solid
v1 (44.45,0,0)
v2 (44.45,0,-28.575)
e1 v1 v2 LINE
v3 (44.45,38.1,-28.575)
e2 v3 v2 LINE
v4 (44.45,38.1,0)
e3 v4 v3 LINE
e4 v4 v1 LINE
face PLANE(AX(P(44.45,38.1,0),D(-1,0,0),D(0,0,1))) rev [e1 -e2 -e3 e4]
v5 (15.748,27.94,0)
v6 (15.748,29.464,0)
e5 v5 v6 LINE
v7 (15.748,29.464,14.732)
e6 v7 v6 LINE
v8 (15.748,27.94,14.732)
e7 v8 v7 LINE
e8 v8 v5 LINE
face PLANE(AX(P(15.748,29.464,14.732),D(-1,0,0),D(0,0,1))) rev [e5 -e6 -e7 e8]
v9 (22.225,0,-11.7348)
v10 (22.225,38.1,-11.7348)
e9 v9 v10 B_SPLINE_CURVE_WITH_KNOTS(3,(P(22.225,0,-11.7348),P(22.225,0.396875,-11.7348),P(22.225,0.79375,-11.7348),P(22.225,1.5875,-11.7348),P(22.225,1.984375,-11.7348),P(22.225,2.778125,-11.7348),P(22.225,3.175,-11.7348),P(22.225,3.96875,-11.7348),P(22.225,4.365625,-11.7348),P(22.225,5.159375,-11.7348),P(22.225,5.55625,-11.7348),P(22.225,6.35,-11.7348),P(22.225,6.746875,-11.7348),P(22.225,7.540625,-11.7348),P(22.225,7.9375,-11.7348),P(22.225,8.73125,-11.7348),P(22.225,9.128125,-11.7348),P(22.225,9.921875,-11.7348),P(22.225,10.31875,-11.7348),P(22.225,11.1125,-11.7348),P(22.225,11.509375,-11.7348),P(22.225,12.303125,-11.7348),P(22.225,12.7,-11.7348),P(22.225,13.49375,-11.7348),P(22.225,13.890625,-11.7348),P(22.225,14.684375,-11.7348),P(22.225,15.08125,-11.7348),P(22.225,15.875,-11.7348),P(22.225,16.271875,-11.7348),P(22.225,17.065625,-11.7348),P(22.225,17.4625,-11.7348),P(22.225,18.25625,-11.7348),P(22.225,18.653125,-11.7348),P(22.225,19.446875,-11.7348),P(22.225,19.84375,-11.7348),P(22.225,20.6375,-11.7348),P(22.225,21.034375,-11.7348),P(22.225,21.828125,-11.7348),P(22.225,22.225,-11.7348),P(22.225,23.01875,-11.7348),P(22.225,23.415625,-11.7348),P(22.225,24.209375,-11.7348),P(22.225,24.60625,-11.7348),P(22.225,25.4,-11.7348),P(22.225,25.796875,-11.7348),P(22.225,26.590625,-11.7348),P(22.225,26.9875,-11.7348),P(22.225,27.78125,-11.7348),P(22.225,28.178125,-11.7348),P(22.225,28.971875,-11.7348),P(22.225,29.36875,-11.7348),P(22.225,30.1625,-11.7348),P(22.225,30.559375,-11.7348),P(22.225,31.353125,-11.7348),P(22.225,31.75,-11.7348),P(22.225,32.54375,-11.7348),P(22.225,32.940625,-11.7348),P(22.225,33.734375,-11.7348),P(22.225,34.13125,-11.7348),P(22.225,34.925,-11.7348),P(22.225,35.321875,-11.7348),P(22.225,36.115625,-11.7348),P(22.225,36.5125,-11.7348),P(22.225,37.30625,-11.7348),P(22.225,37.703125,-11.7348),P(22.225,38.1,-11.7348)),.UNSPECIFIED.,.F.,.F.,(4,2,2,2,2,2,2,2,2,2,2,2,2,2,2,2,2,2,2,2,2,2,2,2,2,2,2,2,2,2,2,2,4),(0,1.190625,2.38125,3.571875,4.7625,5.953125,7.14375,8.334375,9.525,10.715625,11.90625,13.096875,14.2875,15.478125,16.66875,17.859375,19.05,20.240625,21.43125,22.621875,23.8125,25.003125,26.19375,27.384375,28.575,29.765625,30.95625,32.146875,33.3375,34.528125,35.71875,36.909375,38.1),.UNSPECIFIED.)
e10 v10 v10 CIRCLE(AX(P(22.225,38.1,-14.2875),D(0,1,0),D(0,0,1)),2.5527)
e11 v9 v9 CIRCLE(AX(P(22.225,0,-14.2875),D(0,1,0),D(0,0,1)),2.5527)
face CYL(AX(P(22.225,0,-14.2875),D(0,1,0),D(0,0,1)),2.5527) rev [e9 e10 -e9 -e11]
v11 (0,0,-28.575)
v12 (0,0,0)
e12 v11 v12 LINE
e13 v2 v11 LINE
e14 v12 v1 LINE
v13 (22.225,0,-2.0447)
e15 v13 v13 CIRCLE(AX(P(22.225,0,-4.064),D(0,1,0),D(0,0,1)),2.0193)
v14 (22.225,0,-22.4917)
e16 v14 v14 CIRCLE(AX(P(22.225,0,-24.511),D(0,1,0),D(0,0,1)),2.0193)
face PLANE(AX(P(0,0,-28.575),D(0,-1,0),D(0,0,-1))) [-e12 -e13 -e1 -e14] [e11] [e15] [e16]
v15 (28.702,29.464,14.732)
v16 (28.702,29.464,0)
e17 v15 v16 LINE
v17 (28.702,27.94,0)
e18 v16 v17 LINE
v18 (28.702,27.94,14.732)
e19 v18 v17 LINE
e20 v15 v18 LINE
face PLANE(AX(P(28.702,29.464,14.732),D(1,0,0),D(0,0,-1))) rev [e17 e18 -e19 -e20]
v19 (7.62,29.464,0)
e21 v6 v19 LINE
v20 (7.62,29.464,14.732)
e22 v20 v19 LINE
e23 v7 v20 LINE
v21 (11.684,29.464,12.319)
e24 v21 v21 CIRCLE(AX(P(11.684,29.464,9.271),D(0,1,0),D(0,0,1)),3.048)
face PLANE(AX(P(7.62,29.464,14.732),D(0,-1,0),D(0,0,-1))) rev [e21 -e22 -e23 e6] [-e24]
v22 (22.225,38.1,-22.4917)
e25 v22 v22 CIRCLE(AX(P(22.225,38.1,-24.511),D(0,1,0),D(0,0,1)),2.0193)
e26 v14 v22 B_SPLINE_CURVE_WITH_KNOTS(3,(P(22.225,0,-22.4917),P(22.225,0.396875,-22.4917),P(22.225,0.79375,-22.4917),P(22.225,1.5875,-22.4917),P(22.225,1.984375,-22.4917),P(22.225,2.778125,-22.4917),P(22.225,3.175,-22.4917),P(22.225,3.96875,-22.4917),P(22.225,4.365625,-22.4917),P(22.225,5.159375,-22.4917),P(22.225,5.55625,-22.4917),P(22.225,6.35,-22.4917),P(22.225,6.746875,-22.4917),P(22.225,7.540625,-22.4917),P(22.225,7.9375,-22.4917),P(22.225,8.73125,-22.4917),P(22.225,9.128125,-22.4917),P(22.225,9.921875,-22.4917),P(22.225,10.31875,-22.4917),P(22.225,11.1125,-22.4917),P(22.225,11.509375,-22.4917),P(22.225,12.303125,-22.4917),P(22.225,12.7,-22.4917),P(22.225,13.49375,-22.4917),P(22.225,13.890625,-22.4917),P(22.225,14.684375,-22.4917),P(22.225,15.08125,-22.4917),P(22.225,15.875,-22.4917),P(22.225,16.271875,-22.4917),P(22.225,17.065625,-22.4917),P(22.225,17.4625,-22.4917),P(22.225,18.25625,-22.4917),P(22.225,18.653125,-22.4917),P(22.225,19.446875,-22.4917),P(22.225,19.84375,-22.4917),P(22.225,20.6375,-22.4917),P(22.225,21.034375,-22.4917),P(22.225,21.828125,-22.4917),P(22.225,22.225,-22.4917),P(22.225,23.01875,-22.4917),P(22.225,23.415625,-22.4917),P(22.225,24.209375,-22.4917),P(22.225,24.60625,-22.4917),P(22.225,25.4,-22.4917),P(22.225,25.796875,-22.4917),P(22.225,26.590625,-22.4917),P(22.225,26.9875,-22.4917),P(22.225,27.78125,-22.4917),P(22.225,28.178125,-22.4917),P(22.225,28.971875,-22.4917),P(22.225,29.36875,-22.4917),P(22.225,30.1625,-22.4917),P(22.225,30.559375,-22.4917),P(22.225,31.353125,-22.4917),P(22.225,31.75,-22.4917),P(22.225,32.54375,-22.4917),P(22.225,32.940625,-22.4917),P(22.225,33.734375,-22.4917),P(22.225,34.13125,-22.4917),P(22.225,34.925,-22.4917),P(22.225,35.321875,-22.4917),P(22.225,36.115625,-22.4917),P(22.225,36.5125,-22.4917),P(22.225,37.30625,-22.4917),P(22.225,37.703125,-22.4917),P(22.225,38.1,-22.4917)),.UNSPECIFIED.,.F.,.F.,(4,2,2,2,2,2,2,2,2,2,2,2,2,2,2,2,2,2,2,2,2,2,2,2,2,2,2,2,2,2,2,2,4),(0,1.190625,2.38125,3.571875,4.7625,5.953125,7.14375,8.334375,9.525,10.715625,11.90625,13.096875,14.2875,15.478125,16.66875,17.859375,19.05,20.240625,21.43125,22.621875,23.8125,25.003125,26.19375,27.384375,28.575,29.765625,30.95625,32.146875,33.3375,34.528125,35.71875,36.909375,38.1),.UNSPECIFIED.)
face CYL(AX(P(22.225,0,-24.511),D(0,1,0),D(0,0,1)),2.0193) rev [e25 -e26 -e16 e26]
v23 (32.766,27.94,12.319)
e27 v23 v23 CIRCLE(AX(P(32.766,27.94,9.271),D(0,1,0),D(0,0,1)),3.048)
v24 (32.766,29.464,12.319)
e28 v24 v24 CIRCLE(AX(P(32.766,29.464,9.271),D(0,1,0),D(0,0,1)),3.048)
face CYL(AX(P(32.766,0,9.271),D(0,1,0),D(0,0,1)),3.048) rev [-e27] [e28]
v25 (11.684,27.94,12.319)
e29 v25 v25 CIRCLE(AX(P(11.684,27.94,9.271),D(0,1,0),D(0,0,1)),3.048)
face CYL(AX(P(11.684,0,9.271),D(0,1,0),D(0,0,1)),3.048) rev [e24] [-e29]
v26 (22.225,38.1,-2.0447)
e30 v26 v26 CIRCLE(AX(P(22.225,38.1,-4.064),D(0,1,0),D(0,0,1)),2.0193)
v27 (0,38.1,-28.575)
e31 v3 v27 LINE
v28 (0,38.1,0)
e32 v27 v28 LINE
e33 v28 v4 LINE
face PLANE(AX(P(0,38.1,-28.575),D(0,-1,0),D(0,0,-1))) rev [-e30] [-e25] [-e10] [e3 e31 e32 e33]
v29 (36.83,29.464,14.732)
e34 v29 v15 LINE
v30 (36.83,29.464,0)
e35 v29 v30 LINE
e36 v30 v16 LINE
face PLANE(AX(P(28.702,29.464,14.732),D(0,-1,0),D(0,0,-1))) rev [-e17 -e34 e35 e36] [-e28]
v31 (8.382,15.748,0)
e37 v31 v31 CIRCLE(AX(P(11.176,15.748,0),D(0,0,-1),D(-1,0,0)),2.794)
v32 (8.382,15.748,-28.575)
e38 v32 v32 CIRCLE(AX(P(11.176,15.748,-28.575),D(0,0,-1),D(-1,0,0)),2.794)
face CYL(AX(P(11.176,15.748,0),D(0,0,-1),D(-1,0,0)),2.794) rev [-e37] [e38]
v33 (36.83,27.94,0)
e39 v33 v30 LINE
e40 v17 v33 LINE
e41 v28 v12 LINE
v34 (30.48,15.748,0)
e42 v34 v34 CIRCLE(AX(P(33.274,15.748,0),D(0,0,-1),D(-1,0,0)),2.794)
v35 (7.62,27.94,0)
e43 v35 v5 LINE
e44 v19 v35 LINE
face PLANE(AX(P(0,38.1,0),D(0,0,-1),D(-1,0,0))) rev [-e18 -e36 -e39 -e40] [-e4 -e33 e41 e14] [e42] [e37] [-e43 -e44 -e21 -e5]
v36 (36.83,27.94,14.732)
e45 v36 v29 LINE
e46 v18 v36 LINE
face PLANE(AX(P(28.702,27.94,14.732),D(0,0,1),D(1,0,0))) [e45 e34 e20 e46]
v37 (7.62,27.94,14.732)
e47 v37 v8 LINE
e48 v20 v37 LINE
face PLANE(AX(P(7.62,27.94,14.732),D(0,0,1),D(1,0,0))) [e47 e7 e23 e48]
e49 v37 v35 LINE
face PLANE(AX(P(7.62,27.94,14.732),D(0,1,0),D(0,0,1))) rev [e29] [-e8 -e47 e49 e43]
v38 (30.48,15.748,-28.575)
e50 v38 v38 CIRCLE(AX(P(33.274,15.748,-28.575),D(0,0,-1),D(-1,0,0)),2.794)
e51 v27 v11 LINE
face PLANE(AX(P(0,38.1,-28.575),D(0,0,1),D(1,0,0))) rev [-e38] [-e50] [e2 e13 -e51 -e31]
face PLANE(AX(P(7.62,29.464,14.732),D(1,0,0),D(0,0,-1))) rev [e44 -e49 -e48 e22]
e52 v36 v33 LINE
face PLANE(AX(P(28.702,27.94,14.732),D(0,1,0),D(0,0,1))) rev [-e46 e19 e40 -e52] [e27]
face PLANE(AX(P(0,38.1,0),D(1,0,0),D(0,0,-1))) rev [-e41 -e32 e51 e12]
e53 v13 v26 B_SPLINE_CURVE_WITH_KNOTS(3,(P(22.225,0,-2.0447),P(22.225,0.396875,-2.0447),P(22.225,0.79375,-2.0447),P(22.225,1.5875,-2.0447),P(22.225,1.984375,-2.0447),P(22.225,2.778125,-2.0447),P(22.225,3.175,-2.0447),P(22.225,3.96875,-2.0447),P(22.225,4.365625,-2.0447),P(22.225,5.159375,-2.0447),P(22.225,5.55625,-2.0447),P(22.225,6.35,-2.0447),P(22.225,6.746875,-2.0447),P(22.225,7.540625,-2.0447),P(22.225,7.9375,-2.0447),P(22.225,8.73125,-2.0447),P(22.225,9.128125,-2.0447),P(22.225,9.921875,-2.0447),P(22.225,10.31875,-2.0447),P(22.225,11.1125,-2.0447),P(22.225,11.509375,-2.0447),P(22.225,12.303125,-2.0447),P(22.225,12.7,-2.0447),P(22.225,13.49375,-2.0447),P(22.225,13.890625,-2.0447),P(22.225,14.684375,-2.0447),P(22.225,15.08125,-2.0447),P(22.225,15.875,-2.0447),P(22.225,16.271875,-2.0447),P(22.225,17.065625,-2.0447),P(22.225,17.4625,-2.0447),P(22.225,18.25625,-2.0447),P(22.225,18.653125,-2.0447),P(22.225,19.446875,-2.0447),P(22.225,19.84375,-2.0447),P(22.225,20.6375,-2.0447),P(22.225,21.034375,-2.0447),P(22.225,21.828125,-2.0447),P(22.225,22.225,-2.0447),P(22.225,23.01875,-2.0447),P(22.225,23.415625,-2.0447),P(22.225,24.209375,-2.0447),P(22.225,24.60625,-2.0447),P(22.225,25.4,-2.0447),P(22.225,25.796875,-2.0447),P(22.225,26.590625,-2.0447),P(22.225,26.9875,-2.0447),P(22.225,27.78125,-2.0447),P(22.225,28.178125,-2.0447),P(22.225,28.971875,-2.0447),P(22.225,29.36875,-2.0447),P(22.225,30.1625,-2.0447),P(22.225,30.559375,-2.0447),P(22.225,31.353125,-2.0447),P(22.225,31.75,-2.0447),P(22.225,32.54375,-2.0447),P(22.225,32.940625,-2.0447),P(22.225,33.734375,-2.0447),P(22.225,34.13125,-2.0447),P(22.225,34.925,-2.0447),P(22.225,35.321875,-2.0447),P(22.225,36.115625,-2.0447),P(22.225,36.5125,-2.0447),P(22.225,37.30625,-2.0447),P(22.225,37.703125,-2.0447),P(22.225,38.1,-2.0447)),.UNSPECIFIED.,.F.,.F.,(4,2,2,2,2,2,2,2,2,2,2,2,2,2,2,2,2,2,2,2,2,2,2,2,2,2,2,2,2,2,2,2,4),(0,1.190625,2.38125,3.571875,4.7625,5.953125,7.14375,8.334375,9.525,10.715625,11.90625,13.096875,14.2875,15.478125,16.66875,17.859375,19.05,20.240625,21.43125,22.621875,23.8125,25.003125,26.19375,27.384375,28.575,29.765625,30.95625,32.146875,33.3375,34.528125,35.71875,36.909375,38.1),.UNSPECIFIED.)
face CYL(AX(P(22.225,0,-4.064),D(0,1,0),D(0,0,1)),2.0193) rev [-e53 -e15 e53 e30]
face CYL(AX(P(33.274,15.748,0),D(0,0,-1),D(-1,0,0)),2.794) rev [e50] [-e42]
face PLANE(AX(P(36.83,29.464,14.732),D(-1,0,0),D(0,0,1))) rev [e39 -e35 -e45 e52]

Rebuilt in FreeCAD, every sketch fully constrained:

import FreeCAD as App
import Part
import Sketcher

V = App.Vector
Q = App.Units.Quantity

doc = App.newDocument("Part")
body = doc.addObject("PartDesign::Body", "Body")

# Sketch on XZ plane
sketch1 = doc.addObject("Sketcher::SketchObject", "Sketch")
body.addObject(sketch1)
sketch1.AttachmentSupport = (doc.XZ_Plane, [""])
sketch1.MapMode = "FlatFace"
sketch1.addGeometry(Part.LineSegment(V(0, -29, 0), V(0, 0, 0)), False)
sketch1.addGeometry(Part.LineSegment(V(0, 0, 0), V(44, 0, 0)), False)
sketch1.addGeometry(Part.LineSegment(V(44, 0, 0), V(44, -29, 0)), False)
sketch1.addGeometry(Part.LineSegment(V(44, -29, 0), V(0, -29, 0)), False)
sketch1.addConstraint(Sketcher.Constraint("Coincident", 0, 2, 1, 1))
sketch1.addConstraint(Sketcher.Constraint("Coincident", 1, 2, 2, 1))
sketch1.addConstraint(Sketcher.Constraint("Coincident", 2, 2, 3, 1))
sketch1.addConstraint(Sketcher.Constraint("Coincident", 3, 2, 0, 1))
sketch1.addConstraint(Sketcher.Constraint("Vertical", 0))
sketch1.addConstraint(Sketcher.Constraint("Horizontal", 1))
sketch1.addConstraint(Sketcher.Constraint("Vertical", 2))
sketch1.addConstraint(Sketcher.Constraint("Horizontal", 3))
sketch1.addConstraint(Sketcher.Constraint("Coincident", 0, 2, -1, 1))
sketch1.addConstraint(Sketcher.Constraint("DistanceX", 1, 1, 1, 2, Q("1.75 in")))
sketch1.addConstraint(Sketcher.Constraint("DistanceY", 0, 1, 0, 2, Q("1.125 in")))
pad1 = doc.addObject("PartDesign::Pad", "Pad")
body.addObject(pad1)
pad1.Profile = sketch1
pad1.Length = Q("1.5 in")
pad1.Reversed = True

# Sketch on XZ plane
sketch2 = doc.addObject("Sketcher::SketchObject", "Sketch001")
body.addObject(sketch2)
sketch2.AttachmentSupport = (doc.XZ_Plane, [""])
sketch2.MapMode = "FlatFace"
sketch2.AttachmentOffset = App.Placement(V(0, 0, -1.5 * 25.4), App.Rotation())
sketch2.addGeometry(Part.Circle(V(22.2, -14.3, 0), V(0, 0, 1), 2.6), False)
sketch2.addGeometry(Part.Circle(V(22.2, -24.5, 0), V(0, 0, 1), 2), False)
sketch2.addGeometry(Part.Circle(V(22.2, -4.1, 0), V(0, 0, 1), 2), False)
sketch2.addConstraint(Sketcher.Constraint("Equal", 1, 2))
sketch2.addConstraint(Sketcher.Constraint("Vertical", 0, 3, 1, 3))
sketch2.addConstraint(Sketcher.Constraint("Vertical", 1, 3, 2, 3))
sketch2.addConstraint(Sketcher.Constraint("Diameter", 0, Q("0.201 in")))
sketch2.addConstraint(Sketcher.Constraint("Diameter", 1, Q("0.159 in")))
sketch2.addConstraint(Sketcher.Constraint("DistanceY", 2, 3, -1, 1, Q("0.16 in")))
sketch2.addConstraint(Sketcher.Constraint("DistanceX", -1, 1, 0, 3, Q("0.875 in")))
sketch2.addConstraint(Sketcher.Constraint("DistanceY", 0, 3, -1, 1, Q("0.5625 in")))
sketch2.addConstraint(Sketcher.Constraint("DistanceY", 1, 3, -1, 1, Q("0.965 in")))
pocket1 = doc.addObject("PartDesign::Pocket", "Pocket")
body.addObject(pocket1)
pocket1.Profile = sketch2
pocket1.Type = "ThroughAll"
pocket1.Reversed = True

# Sketch on XY plane
sketch3 = doc.addObject("Sketcher::SketchObject", "Sketch002")
body.addObject(sketch3)
sketch3.AttachmentSupport = (doc.XY_Plane, [""])
sketch3.MapMode = "FlatFace"
sketch3.AttachmentOffset = App.Placement(V(0, 0, -1.125 * 25.4), App.Rotation())
sketch3.addGeometry(Part.Circle(V(33.3, 15.7, 0), V(0, 0, 1), 2.8), False)
sketch3.addGeometry(Part.Circle(V(11.2, 15.7, 0), V(0, 0, 1), 2.8), False)
sketch3.addConstraint(Sketcher.Constraint("Equal", 0, 1))
sketch3.addConstraint(Sketcher.Constraint("Horizontal", 0, 3, 1, 3))
sketch3.addConstraint(Sketcher.Constraint("Diameter", 0, Q("0.22 in")))
sketch3.addConstraint(Sketcher.Constraint("DistanceX", -1, 1, 0, 3, Q("1.31 in")))
sketch3.addConstraint(Sketcher.Constraint("DistanceY", -1, 1, 0, 3, Q("0.62 in")))
sketch3.addConstraint(Sketcher.Constraint("DistanceX", -1, 1, 1, 3, Q("0.44 in")))
pocket2 = doc.addObject("PartDesign::Pocket", "Pocket001")
body.addObject(pocket2)
pocket2.Profile = sketch3
pocket2.Type = "ThroughAll"
pocket2.Reversed = True

# Sketch on XY plane
sketch4 = doc.addObject("Sketcher::SketchObject", "Sketch003")
body.addObject(sketch4)
sketch4.AttachmentSupport = (doc.XY_Plane, [""])
sketch4.MapMode = "FlatFace"
sketch4.addGeometry(Part.LineSegment(V(7.6, 29.5, 0), V(7.6, 27.9, 0)), False)
sketch4.addGeometry(Part.LineSegment(V(7.6, 27.9, 0), V(15.7, 27.9, 0)), False)
sketch4.addGeometry(Part.LineSegment(V(15.7, 27.9, 0), V(15.7, 29.5, 0)), False)
sketch4.addGeometry(Part.LineSegment(V(15.7, 29.5, 0), V(7.6, 29.5, 0)), False)
sketch4.addGeometry(Part.LineSegment(V(28.7, 29.5, 0), V(28.7, 27.9, 0)), False)
sketch4.addGeometry(Part.LineSegment(V(28.7, 27.9, 0), V(36.8, 27.9, 0)), False)
sketch4.addGeometry(Part.LineSegment(V(36.8, 27.9, 0), V(36.8, 29.5, 0)), False)
sketch4.addGeometry(Part.LineSegment(V(36.8, 29.5, 0), V(28.7, 29.5, 0)), False)
sketch4.addConstraint(Sketcher.Constraint("Coincident", 0, 2, 1, 1))
sketch4.addConstraint(Sketcher.Constraint("Coincident", 1, 2, 2, 1))
sketch4.addConstraint(Sketcher.Constraint("Coincident", 2, 2, 3, 1))
sketch4.addConstraint(Sketcher.Constraint("Coincident", 3, 2, 0, 1))
sketch4.addConstraint(Sketcher.Constraint("Coincident", 4, 2, 5, 1))
sketch4.addConstraint(Sketcher.Constraint("Coincident", 5, 2, 6, 1))
sketch4.addConstraint(Sketcher.Constraint("Coincident", 6, 2, 7, 1))
sketch4.addConstraint(Sketcher.Constraint("Coincident", 7, 2, 4, 1))
sketch4.addConstraint(Sketcher.Constraint("Vertical", 0))
sketch4.addConstraint(Sketcher.Constraint("Horizontal", 1))
sketch4.addConstraint(Sketcher.Constraint("Vertical", 2))
sketch4.addConstraint(Sketcher.Constraint("Horizontal", 3))
sketch4.addConstraint(Sketcher.Constraint("Vertical", 4))
sketch4.addConstraint(Sketcher.Constraint("Horizontal", 5))
sketch4.addConstraint(Sketcher.Constraint("Vertical", 6))
sketch4.addConstraint(Sketcher.Constraint("Horizontal", 7))
sketch4.addConstraint(Sketcher.Constraint("Horizontal", 1, 2, 4, 2))
sketch4.addConstraint(Sketcher.Constraint("Horizontal", 3, 2, 6, 2))
sketch4.addConstraint(Sketcher.Constraint("Equal", 3, 5))
sketch4.addConstraint(Sketcher.Constraint("DistanceX", 1, 1, 1, 2, Q("0.32 in")))
sketch4.addConstraint(Sketcher.Constraint("DistanceY", 0, 2, 0, 1, Q("0.06 in")))
sketch4.addConstraint(Sketcher.Constraint("DistanceX", -1, 1, 0, 2, Q("0.3 in")))
sketch4.addConstraint(Sketcher.Constraint("DistanceY", -1, 1, 0, 2, Q("1.1 in")))
sketch4.addConstraint(Sketcher.Constraint("DistanceX", -1, 1, 4, 2, Q("1.13 in")))
pad2 = doc.addObject("PartDesign::Pad", "Pad001")
body.addObject(pad2)
pad2.Profile = sketch4
pad2.Length = Q("0.58 in")

# Sketch on XZ plane
sketch5 = doc.addObject("Sketcher::SketchObject", "Sketch004")
body.addObject(sketch5)
sketch5.AttachmentSupport = (doc.XZ_Plane, [""])
sketch5.MapMode = "FlatFace"
sketch5.AttachmentOffset = App.Placement(V(0, 0, -1.16 * 25.4), App.Rotation())
sketch5.addGeometry(Part.Circle(V(11.7, 9.3, 0), V(0, 0, 1), 3), False)
sketch5.addGeometry(Part.Circle(V(32.8, 9.3, 0), V(0, 0, 1), 3), False)
sketch5.addConstraint(Sketcher.Constraint("Equal", 0, 1))
sketch5.addConstraint(Sketcher.Constraint("Horizontal", 0, 3, 1, 3))
sketch5.addConstraint(Sketcher.Constraint("Diameter", 0, Q("0.24 in")))
sketch5.addConstraint(Sketcher.Constraint("DistanceX", -1, 1, 0, 3, Q("0.46 in")))
sketch5.addConstraint(Sketcher.Constraint("DistanceX", -1, 1, 1, 3, Q("1.29 in")))
sketch5.addConstraint(Sketcher.Constraint("DistanceY", -1, 1, 0, 3, Q("0.365 in")))
pocket3 = doc.addObject("PartDesign::Pocket", "Pocket002")
body.addObject(pocket3)
pocket3.Profile = sketch5
pocket3.Type = "ThroughAll"
pocket3.Reversed = True

doc.recompute()
